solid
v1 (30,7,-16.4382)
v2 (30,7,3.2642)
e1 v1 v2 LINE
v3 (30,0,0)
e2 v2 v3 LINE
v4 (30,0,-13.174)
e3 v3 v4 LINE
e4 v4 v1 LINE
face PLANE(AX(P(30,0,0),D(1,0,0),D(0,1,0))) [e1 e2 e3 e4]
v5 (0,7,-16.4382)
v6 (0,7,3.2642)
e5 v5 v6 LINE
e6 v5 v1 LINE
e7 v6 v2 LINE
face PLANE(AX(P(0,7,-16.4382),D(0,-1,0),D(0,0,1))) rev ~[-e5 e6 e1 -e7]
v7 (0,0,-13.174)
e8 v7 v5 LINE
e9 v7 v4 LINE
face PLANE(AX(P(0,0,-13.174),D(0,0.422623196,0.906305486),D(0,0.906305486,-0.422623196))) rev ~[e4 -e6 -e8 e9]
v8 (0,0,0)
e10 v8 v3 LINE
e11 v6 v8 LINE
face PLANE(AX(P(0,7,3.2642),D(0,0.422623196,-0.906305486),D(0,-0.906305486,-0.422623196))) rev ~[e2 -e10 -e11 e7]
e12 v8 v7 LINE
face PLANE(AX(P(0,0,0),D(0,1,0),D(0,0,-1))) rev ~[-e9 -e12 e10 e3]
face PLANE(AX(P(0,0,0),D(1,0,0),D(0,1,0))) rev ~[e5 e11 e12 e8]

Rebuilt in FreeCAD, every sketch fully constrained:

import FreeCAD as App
import Part
import Sketcher
Q = App.Units.Quantity

doc = App.newDocument("Part")
body = doc.addObject("PartDesign::Body", "Body")

# Sketch on YZ plane
sketch1 = body.newObject("Sketcher::SketchObject", "Sketch")
sketch1.AttachmentSupport = (doc.getObject("YZ_Plane"), [""])
sketch1.MapMode = "FlatFace"
sketch1.addGeometry([
    Part.LineSegment(App.Vector(7, 3, 0), App.Vector(0, 0, 0)),
    Part.LineSegment(App.Vector(0, 0, 0), App.Vector(0, -13, 0)),
    Part.LineSegment(App.Vector(0, -13, 0), App.Vector(7, -16, 0)),
    Part.LineSegment(App.Vector(7, -16, 0), App.Vector(7, 3, 0)),
], False)
sketch1.addConstraint([
    Sketcher.Constraint("Coincident", 0, 2, 1, 1),
    Sketcher.Constraint("Coincident", 1, 2, 2, 1),
    Sketcher.Constraint("Coincident", 2, 2, 3, 1),
    Sketcher.Constraint("Coincident", 3, 2, 0, 1),
    Sketcher.Constraint("Vertical", 1),
    Sketcher.Constraint("Vertical", 3),
    Sketcher.Constraint("Coincident", 0, 2, -1, 1),
    Sketcher.Constraint("Equal", 0, 2),
    Sketcher.Constraint("DistanceX", -1, 1, 2, 2, 7.0),
    Sketcher.Constraint("DistanceY", 1, 2, 1, 1, 13.174),
    Sketcher.Constraint("Angle", 0, Q("-154.9997 deg")),
])
pad1 = body.newObject("PartDesign::Pad", "Pad")
pad1.Profile = sketch1
pad1.Length = 30

doc.recompute()
